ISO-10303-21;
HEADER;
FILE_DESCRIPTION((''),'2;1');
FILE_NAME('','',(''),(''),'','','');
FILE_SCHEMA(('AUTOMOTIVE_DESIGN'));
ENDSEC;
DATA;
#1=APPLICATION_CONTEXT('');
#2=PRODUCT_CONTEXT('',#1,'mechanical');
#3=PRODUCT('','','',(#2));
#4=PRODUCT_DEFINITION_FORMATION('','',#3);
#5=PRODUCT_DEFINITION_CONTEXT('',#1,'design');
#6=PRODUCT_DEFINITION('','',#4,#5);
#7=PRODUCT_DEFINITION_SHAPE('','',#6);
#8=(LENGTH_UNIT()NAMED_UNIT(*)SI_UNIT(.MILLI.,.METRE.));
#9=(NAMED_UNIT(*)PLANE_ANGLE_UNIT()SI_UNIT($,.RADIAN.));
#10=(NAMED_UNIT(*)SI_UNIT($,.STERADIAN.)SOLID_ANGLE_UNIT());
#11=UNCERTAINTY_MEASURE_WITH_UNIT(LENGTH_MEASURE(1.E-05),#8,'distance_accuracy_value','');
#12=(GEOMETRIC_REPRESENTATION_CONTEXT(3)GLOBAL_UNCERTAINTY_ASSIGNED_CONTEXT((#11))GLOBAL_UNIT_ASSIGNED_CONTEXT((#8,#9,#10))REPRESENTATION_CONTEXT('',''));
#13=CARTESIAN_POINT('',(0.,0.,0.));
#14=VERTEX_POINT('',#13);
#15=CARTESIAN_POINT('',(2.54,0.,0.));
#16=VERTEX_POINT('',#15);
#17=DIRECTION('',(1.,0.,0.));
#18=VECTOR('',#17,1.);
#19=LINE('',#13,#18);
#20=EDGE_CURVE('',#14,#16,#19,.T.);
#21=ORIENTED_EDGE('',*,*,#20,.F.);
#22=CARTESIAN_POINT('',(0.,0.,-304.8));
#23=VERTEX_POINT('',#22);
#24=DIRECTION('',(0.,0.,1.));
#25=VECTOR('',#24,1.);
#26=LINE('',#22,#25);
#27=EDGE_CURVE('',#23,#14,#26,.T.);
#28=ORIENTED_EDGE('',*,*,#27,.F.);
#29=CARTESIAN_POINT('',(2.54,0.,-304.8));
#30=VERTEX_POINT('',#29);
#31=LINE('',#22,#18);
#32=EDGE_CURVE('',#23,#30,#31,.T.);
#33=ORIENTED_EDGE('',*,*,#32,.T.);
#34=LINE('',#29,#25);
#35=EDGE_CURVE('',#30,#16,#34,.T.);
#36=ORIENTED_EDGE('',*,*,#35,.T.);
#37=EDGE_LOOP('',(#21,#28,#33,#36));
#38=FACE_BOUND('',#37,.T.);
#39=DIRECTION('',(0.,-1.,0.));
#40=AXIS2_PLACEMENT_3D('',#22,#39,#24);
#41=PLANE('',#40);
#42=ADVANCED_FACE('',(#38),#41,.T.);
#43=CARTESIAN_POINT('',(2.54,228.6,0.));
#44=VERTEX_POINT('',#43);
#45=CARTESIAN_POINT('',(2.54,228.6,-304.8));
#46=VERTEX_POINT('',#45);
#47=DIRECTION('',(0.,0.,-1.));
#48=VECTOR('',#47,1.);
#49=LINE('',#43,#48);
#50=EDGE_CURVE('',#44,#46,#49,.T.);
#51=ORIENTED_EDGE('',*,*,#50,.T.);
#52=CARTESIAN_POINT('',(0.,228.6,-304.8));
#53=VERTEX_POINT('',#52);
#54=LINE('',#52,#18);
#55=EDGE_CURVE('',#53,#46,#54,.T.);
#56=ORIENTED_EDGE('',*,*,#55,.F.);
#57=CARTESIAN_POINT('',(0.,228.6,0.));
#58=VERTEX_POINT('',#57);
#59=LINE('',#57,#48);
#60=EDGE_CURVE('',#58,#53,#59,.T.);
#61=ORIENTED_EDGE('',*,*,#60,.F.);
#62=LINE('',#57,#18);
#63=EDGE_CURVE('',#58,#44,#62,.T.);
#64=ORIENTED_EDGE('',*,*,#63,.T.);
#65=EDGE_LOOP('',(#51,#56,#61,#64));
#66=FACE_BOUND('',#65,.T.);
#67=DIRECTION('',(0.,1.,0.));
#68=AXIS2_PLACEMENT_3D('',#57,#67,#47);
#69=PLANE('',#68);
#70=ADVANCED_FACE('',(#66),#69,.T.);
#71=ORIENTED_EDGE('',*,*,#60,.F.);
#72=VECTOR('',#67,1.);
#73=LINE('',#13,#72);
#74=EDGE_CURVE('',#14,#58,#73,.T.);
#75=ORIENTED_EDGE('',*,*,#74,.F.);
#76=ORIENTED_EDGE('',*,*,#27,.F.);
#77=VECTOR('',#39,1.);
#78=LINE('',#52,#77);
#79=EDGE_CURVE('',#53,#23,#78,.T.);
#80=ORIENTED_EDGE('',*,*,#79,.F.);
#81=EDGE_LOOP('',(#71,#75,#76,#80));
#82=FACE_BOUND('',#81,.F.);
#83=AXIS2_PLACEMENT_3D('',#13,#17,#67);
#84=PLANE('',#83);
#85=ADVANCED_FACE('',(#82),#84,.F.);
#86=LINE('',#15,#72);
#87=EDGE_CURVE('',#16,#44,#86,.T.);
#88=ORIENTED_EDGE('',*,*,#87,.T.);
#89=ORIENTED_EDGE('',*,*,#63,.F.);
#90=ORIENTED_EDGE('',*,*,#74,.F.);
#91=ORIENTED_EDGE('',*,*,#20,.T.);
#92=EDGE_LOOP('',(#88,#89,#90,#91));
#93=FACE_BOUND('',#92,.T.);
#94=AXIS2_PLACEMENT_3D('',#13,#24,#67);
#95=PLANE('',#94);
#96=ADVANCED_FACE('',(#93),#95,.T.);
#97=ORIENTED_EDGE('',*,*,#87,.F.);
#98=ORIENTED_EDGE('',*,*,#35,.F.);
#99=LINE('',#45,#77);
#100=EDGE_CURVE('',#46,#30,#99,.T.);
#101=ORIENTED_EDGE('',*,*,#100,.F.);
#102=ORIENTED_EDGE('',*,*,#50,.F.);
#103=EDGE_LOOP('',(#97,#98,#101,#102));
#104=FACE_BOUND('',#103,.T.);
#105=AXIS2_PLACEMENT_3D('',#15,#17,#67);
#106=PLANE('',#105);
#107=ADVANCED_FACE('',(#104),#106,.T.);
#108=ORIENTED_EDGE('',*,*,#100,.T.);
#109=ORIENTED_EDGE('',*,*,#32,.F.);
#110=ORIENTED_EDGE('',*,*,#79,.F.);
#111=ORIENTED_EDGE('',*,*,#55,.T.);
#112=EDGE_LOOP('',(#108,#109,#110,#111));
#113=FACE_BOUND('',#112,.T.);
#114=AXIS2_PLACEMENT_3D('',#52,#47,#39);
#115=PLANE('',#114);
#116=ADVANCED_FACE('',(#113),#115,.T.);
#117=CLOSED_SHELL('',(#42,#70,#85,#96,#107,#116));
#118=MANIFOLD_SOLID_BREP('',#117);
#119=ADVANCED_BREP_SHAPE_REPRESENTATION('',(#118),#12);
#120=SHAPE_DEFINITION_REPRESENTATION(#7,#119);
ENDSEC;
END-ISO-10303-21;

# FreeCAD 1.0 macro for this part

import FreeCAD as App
import Part
import Sketcher

V = App.Vector
Q = App.Units.Quantity

doc = App.newDocument("Part")
params = doc.addObject("Spreadsheet::Sheet", "Params")
for row, (alias, value) in enumerate([
    ("sketch1_width", "9 in"),
    ("sketch1_height", "12 in"),
    ("pad1_length", "0.1 in"),
], start=1):
    params.set(f"A{row}", alias)
    params.set(f"B{row}", "=" + value)
    params.setAlias(f"B{row}", alias)

body = doc.addObject("PartDesign::Body", "Body")

# Sketch on YZ plane
sketch1 = doc.addObject("Sketcher::SketchObject", "Sketch")
body.addObject(sketch1)
sketch1.AttachmentSupport = (doc.YZ_Plane, [""])
sketch1.MapMode = "FlatFace"
sketch1.addGeometry(Part.LineSegment(V(229, 0, 0), V(0, 0, 0)), False)
sketch1.addGeometry(Part.LineSegment(V(0, 0, 0), V(0, -305, 0)), False)
sketch1.addGeometry(Part.LineSegment(V(0, -305, 0), V(229, -305, 0)), False)
sketch1.addGeometry(Part.LineSegment(V(229, -305, 0), V(229, 0, 0)), False)
sketch1.addConstraint(Sketcher.Constraint("Coincident", 0, 2, 1, 1))
sketch1.addConstraint(Sketcher.Constraint("Coincident", 1, 2, 2, 1))
sketch1.addConstraint(Sketcher.Constraint("Coincident", 2, 2, 3, 1))
sketch1.addConstraint(Sketcher.Constraint("Coincident", 3, 2, 0, 1))
sketch1.addConstraint(Sketcher.Constraint("Horizontal", 0))
sketch1.addConstraint(Sketcher.Constraint("Vertical", 1))
sketch1.addConstraint(Sketcher.Constraint("Horizontal", 2))
sketch1.addConstraint(Sketcher.Constraint("Vertical", 3))
sketch1.addConstraint(Sketcher.Constraint("Coincident", 0, 2, -1, 1))
sketch1.addConstraint(Sketcher.Constraint("DistanceX", 0, 2, 0, 1, Q("9 in")))
sketch1.addConstraint(Sketcher.Constraint("DistanceY", 1, 2, 1, 1, Q("12 in")))
sketch1.setExpression("Constraints[9]", "Params.sketch1_width")
sketch1.setExpression("Constraints[10]", "Params.sketch1_height")
pad1 = doc.addObject("PartDesign::Pad", "Pad")
body.addObject(pad1)
pad1.Profile = sketch1
pad1.setExpression("Length", "Params.pad1_length")

doc.recompute()
